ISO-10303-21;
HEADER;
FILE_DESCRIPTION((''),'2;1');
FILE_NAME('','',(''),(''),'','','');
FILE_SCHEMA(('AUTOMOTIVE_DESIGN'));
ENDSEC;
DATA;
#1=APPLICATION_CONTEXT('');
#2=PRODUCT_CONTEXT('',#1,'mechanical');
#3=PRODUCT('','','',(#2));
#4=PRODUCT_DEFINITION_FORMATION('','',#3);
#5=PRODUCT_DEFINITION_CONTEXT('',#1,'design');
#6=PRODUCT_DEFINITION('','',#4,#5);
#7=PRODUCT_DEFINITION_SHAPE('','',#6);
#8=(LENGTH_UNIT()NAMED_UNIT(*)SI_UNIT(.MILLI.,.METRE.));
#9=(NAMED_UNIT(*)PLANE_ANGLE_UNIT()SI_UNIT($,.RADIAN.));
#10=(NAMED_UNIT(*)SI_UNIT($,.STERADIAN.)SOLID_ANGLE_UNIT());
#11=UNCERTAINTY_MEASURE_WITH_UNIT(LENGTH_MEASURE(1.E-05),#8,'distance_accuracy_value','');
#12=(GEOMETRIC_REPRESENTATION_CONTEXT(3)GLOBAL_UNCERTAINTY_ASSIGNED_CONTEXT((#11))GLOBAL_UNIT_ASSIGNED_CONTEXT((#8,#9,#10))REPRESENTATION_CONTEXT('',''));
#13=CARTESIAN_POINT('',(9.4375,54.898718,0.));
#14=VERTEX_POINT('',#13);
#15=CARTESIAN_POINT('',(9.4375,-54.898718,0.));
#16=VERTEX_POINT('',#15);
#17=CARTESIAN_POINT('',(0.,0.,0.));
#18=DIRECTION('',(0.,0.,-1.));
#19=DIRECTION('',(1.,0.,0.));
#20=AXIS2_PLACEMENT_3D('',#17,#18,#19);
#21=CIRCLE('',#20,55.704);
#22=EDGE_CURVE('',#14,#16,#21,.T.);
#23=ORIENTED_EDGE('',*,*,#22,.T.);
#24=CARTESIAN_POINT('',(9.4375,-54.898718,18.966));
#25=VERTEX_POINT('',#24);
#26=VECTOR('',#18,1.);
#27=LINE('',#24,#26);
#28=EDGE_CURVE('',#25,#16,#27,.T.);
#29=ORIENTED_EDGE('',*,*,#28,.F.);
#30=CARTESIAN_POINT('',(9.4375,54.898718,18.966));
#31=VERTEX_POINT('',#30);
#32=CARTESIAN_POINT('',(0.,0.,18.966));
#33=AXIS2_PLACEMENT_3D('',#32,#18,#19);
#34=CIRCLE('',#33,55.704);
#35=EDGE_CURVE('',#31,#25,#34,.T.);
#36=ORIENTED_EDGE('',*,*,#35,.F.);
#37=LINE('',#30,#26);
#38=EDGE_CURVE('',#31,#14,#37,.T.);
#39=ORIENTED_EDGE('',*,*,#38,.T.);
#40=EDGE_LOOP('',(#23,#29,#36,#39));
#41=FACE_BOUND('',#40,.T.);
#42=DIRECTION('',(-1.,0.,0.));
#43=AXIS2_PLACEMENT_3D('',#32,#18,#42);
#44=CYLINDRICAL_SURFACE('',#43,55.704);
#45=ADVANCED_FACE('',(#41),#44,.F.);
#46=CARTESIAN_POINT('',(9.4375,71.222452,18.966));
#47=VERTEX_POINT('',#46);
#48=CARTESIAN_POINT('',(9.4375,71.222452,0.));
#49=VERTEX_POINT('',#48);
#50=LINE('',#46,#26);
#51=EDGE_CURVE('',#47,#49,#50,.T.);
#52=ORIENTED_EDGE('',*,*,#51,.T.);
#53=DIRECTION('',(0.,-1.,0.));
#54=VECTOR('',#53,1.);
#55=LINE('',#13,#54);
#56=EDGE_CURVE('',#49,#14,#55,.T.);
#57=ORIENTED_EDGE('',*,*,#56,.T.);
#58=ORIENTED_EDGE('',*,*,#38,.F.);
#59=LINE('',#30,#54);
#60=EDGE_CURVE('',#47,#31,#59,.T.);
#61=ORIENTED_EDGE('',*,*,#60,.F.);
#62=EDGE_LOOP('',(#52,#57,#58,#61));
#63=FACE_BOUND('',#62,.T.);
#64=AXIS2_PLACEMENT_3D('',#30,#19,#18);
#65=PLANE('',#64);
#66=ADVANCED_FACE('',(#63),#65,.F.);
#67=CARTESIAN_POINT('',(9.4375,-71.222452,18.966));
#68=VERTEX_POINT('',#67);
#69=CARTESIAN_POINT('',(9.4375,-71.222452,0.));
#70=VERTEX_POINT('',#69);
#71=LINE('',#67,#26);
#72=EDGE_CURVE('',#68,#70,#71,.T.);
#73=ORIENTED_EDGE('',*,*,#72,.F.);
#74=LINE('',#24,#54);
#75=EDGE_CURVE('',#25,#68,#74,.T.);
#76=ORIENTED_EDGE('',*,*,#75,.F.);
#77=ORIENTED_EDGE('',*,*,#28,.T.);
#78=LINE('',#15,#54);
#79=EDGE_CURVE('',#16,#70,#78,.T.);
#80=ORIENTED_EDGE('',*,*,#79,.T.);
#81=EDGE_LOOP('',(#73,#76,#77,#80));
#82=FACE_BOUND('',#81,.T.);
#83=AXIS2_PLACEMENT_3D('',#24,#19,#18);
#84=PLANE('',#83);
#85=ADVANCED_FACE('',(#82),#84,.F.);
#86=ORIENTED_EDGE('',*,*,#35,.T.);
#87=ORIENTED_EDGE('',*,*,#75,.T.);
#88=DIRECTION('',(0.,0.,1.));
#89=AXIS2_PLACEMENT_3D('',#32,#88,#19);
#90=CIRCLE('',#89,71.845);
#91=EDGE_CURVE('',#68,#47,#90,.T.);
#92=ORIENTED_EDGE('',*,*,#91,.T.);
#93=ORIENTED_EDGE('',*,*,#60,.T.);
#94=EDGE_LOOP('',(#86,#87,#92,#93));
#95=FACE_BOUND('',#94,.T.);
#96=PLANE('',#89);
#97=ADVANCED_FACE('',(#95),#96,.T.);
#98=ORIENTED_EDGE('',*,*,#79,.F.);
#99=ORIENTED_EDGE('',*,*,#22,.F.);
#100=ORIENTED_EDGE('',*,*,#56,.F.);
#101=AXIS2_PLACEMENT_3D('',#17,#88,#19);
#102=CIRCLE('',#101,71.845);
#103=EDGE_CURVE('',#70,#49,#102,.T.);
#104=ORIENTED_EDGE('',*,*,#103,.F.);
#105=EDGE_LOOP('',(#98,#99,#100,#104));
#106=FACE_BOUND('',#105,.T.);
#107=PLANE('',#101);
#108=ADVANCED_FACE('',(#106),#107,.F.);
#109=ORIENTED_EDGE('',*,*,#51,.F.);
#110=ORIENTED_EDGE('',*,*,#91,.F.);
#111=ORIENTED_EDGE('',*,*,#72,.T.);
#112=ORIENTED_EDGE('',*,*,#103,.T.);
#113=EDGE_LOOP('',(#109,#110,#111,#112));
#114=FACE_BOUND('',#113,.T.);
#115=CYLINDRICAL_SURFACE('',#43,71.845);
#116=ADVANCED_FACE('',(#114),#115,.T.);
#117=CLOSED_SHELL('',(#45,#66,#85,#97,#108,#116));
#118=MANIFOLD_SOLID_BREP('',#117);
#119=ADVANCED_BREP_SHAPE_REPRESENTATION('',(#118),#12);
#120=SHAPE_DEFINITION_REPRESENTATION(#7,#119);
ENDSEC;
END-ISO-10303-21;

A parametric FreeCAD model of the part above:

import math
import FreeCAD as App
import Part
import Sketcher
Q = App.Units.Quantity

doc = App.newDocument("Part")
params = doc.addObject("Spreadsheet::Sheet", "Params")
for row, (alias, value) in enumerate([
    ("pad1_length", "18.966 mm"),
], start=1):
    params.set(f"A{row}", alias)
    params.set(f"B{row}", "=" + value)
    params.setAlias(f"B{row}", alias)

body = doc.addObject("PartDesign::Body", "Body")

sketch1 = body.newObject("Sketcher::SketchObject", "Sketch")
sketch1.AttachmentSupport = (doc.getObject("XY_Plane"), [""])
sketch1.MapMode = "FlatFace"
sketch1.addGeometry(Part.LineSegment(App.Vector(9.4375, 71.222452, 0), App.Vector(9.4375, 54.898718, 0)), False)
sketch1.addGeometry(Part.ArcOfCircle(Part.Circle(App.Vector(0, 0, 0), App.Vector(0, 0, 1), 55.704), math.radians(-80.245768), math.radians(80.245768)), False)
sketch1.addGeometry(Part.LineSegment(App.Vector(9.4375, -54.898718, 0), App.Vector(9.4375, -71.222452, 0)), False)
sketch1.addGeometry(Part.ArcOfCircle(Part.Circle(App.Vector(0, 0, 0), App.Vector(0, 0, 1), 71.845), math.radians(-82.451859), math.radians(82.451859)), False)
sketch1.addConstraint(Sketcher.Constraint("Coincident", 0, 2, 1, 2))
sketch1.addConstraint(Sketcher.Constraint("Coincident", 1, 1, 2, 1))
sketch1.addConstraint(Sketcher.Constraint("Coincident", 2, 2, 3, 1))
sketch1.addConstraint(Sketcher.Constraint("Coincident", 3, 2, 0, 1))
sketch1.addConstraint(Sketcher.Constraint("Vertical", 0))
sketch1.addConstraint(Sketcher.Constraint("Vertical", 2))
sketch1.addConstraint(Sketcher.Constraint("Coincident", 1, 3, -1, 1))
sketch1.addConstraint(Sketcher.Constraint("Coincident", 3, 3, -1, 1))
sketch1.addConstraint(Sketcher.Constraint("Vertical", 0, 2, 1, 1))
sketch1.addConstraint(Sketcher.Constraint("Radius", 1, Q("55.704 mm")))
sketch1.addConstraint(Sketcher.Constraint("Radius", 3, Q("71.845 mm")))
sketch1.addConstraint(Sketcher.Constraint("DistanceX", -1, 1, 0, 2, Q("9.4375 mm")))
pad1 = body.newObject("PartDesign::Pad", "Pad")
pad1.Profile = sketch1
pad1.setExpression("Length", "Params.pad1_length")

doc.recompute()
